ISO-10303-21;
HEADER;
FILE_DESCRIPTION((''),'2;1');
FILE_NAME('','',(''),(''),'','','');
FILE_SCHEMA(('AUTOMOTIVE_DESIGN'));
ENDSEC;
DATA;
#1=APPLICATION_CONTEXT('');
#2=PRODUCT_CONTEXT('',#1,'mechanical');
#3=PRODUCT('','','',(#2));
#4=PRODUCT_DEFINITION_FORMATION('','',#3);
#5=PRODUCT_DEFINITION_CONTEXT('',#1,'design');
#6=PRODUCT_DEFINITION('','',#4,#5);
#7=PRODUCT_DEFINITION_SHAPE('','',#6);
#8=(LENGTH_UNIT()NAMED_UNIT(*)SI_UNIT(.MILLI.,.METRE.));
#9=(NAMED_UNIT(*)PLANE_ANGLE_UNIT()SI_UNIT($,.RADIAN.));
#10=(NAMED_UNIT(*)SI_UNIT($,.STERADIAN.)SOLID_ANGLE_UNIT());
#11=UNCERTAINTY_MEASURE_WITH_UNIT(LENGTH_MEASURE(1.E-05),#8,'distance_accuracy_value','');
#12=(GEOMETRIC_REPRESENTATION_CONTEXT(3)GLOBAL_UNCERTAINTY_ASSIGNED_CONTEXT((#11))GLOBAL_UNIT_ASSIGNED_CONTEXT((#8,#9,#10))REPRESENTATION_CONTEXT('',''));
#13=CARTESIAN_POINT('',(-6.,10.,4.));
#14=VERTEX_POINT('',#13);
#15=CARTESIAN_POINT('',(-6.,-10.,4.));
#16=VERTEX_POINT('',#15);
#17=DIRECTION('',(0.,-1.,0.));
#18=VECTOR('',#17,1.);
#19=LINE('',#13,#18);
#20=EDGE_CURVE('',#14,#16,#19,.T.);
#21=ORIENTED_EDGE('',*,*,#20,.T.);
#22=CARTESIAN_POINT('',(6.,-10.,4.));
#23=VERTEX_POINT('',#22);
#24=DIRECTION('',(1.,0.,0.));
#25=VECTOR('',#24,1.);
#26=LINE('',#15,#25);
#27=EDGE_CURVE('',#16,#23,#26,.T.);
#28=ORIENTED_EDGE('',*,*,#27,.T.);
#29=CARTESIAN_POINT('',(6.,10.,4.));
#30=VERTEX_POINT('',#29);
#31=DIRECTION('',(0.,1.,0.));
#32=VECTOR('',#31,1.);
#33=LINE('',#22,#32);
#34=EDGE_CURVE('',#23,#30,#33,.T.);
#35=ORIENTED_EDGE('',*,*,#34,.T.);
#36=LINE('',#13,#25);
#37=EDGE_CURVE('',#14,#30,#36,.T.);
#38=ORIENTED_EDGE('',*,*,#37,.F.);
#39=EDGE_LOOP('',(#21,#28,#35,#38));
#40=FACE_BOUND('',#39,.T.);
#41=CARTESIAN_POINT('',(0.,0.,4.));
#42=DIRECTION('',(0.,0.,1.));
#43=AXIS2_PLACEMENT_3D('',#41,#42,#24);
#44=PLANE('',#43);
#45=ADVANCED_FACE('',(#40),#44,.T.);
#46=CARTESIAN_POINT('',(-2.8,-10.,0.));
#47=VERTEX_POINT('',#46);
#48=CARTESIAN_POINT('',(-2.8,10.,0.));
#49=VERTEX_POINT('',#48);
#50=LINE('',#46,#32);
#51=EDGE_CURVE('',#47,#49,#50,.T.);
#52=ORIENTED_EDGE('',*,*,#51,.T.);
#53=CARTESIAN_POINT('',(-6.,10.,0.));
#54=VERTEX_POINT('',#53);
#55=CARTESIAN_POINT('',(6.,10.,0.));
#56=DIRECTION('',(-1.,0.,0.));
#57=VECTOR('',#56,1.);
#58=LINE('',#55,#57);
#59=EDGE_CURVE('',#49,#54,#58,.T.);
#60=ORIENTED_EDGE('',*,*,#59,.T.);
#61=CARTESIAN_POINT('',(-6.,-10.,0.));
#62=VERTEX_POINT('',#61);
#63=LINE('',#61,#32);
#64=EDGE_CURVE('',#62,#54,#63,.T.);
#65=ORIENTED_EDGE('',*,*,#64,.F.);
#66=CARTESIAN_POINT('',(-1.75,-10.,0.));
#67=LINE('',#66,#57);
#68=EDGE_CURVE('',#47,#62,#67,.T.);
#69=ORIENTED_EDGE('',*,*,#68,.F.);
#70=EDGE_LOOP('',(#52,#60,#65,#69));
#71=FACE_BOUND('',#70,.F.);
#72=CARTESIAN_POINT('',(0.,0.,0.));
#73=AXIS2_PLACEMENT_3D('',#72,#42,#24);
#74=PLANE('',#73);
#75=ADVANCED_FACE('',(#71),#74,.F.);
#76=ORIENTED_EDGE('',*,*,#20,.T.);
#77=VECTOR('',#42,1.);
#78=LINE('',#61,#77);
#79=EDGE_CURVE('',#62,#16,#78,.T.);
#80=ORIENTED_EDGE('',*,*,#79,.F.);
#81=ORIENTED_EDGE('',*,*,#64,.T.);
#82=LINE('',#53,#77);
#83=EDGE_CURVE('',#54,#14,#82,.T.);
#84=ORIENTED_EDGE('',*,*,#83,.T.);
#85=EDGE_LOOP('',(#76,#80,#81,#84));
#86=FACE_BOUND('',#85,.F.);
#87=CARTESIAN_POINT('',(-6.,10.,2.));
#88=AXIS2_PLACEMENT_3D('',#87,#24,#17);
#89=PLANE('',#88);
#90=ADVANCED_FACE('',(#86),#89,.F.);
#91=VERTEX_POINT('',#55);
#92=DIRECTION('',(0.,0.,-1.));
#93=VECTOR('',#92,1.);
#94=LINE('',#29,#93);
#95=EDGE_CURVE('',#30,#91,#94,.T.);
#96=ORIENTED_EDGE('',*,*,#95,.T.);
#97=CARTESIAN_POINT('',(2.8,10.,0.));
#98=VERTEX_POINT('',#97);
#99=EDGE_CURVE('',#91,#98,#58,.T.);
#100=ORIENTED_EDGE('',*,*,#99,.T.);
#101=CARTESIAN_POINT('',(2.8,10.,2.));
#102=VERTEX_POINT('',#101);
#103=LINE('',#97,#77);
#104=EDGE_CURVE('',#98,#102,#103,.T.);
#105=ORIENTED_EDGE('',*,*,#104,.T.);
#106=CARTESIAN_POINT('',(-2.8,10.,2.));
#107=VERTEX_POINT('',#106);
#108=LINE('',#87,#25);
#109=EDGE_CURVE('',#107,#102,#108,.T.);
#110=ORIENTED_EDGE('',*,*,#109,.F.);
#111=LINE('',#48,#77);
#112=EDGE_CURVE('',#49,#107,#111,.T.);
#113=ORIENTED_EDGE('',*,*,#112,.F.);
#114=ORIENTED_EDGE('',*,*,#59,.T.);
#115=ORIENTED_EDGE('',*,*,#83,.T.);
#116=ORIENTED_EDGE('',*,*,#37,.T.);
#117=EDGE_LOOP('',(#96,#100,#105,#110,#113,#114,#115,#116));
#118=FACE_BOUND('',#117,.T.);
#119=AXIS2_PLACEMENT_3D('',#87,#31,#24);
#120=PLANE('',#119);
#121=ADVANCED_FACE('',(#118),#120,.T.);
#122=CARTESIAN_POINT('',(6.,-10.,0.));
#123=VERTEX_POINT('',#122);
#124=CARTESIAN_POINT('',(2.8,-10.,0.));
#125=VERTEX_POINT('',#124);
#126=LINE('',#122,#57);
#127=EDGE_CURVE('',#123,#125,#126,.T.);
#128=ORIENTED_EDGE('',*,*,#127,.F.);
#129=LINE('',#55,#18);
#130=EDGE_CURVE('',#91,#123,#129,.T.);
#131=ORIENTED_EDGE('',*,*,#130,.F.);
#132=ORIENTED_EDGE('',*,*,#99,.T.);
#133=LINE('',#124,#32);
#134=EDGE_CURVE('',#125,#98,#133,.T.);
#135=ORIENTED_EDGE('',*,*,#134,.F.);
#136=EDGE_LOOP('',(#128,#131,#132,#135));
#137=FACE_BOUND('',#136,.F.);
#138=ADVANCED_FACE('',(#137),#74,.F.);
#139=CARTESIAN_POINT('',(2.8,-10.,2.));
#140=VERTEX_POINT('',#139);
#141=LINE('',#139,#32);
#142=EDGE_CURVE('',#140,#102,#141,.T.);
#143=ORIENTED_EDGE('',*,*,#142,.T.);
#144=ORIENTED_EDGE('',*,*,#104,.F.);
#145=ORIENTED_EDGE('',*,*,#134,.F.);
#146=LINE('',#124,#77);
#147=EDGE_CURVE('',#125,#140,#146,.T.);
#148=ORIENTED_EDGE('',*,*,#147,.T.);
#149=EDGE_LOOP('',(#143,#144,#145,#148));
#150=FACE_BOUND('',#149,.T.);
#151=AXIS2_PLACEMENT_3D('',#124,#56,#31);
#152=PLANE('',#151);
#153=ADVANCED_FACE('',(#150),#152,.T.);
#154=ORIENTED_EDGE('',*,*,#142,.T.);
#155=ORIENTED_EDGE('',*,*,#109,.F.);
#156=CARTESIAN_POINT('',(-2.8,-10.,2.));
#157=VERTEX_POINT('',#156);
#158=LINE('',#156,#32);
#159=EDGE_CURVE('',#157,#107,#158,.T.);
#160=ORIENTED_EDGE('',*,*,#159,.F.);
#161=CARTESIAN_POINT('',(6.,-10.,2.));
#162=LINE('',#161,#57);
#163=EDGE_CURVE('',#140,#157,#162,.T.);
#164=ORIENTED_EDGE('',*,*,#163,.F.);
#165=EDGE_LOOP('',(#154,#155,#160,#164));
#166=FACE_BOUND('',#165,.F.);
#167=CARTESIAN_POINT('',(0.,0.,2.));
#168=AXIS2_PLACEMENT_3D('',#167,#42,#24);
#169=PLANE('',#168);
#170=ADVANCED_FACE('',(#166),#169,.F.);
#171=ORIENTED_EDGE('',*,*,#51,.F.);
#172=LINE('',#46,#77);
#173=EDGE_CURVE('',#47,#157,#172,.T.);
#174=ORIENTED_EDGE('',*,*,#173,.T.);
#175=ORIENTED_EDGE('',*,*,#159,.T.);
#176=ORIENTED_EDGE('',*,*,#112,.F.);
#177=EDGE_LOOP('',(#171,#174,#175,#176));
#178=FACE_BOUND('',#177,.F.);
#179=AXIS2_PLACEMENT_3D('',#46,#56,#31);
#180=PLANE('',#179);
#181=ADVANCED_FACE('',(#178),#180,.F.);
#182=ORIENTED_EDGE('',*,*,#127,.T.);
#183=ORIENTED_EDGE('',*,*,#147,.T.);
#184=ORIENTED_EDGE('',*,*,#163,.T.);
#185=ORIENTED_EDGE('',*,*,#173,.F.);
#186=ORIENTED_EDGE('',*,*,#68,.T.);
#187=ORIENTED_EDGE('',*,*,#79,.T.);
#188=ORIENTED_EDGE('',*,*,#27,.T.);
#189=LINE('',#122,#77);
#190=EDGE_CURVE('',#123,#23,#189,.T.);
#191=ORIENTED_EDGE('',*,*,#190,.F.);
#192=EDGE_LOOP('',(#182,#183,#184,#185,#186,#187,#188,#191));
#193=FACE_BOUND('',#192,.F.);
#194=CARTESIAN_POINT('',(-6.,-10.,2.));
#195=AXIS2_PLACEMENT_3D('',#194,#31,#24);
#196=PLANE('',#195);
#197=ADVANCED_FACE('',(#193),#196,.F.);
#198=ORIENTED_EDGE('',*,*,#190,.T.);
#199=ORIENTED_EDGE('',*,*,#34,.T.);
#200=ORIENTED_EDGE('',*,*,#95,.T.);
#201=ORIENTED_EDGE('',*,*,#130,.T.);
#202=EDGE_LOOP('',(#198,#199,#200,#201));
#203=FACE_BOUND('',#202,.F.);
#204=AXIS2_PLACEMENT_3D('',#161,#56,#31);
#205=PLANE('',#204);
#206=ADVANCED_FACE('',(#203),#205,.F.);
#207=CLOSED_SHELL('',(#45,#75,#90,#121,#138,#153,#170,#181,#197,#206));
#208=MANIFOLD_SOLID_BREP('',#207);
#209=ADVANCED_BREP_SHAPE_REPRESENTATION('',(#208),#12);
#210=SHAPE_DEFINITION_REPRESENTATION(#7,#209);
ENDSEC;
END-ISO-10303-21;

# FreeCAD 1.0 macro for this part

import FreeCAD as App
import Part
import Sketcher
from FreeCAD import Vector
Q = App.Units.Quantity


def add_polygon(sketch, points):
    """Adds a closed chain of lines whose ends are joined by coincident constraints."""
    first, n = sketch.GeometryCount, len(points)
    for a, b in zip(points, points[1:] + points[:1]):
        sketch.addGeometry(Part.LineSegment(App.Vector(*a, 0), App.Vector(*b, 0)), False)
    for i in range(n):
        sketch.addConstraint(Sketcher.Constraint("Coincident", first + i, 2, first + (i + 1) % n, 1))

doc = App.newDocument("Part")
body = doc.addObject("PartDesign::Body", "Body")
body.AllowCompound = True

# Sketch on XY plane
sketch1 = body.newObject("Sketcher::SketchObject", "Sketch")
sketch1.AttachmentSupport = (doc.getObject("XY_Plane"), [""])
sketch1.MapMode = "FlatFace"
add_polygon(sketch1, [(-6, -10), (-2.8, -10), (-2.8, 10), (-6, 10)])  # lines 0-3
add_polygon(sketch1, [(2.8, 10), (2.8, -10), (6, -10), (6, 10)])  # lines 4-7
sketch1.addConstraint(Sketcher.Constraint("Horizontal", 0))
sketch1.addConstraint(Sketcher.Constraint("Vertical", 1))
sketch1.addConstraint(Sketcher.Constraint("Horizontal", 2))
sketch1.addConstraint(Sketcher.Constraint("Vertical", 3))
sketch1.addConstraint(Sketcher.Constraint("Vertical", 4))
sketch1.addConstraint(Sketcher.Constraint("Horizontal", 5))
sketch1.addConstraint(Sketcher.Constraint("Vertical", 6))
sketch1.addConstraint(Sketcher.Constraint("Horizontal", 7))
sketch1.addConstraint(Sketcher.Constraint("Symmetric", 1, 2, 4, 2, -1, 1))
sketch1.addConstraint(Sketcher.Constraint("Symmetric", 3, 2, 6, 2, -1, 1))
sketch1.addConstraint(Sketcher.Constraint("Horizontal", 3, 2, 4, 2))
sketch1.addConstraint(Sketcher.Constraint("DistanceX", 0, 2, -1, 1, Q("2.8 mm")))
sketch1.addConstraint(Sketcher.Constraint("DistanceY", 1, 1, 1, 2, Q("20 mm")))
sketch1.addConstraint(Sketcher.Constraint("DistanceX", 0, 1, 0, 2, Q("3.2 mm")))
pad1 = body.newObject("PartDesign::Pad", "Pad")
pad1.Profile = sketch1
pad1.Length = 2

# Sketch on XY plane
sketch2 = body.newObject("Sketcher::SketchObject", "Sketch001")
sketch2.AttachmentSupport = (doc.getObject("XY_Plane"), [""])
sketch2.MapMode = "FlatFace"
sketch2.AttachmentOffset = App.Placement(Vector(0, 0, 2), App.Rotation())
add_polygon(sketch2, [(6, 10), (-6, 10), (-6, -10), (6, -10)])  # lines 0-3
sketch2.addConstraint(Sketcher.Constraint("Horizontal", 0))
sketch2.addConstraint(Sketcher.Constraint("Vertical", 1))
sketch2.addConstraint(Sketcher.Constraint("Horizontal", 2))
sketch2.addConstraint(Sketcher.Constraint("Vertical", 3))
sketch2.addConstraint(Sketcher.Constraint("Symmetric", 0, 2, 2, 2, -1, 1))
sketch2.addConstraint(Sketcher.Constraint("DistanceX", 0, 2, 0, 1, Q("12 mm")))
sketch2.addConstraint(Sketcher.Constraint("DistanceY", 1, 2, 1, 1, Q("20 mm")))
pad2 = body.newObject("PartDesign::Pad", "Pad001")
pad2.Profile = sketch2
pad2.Length = 2

doc.recompute()
